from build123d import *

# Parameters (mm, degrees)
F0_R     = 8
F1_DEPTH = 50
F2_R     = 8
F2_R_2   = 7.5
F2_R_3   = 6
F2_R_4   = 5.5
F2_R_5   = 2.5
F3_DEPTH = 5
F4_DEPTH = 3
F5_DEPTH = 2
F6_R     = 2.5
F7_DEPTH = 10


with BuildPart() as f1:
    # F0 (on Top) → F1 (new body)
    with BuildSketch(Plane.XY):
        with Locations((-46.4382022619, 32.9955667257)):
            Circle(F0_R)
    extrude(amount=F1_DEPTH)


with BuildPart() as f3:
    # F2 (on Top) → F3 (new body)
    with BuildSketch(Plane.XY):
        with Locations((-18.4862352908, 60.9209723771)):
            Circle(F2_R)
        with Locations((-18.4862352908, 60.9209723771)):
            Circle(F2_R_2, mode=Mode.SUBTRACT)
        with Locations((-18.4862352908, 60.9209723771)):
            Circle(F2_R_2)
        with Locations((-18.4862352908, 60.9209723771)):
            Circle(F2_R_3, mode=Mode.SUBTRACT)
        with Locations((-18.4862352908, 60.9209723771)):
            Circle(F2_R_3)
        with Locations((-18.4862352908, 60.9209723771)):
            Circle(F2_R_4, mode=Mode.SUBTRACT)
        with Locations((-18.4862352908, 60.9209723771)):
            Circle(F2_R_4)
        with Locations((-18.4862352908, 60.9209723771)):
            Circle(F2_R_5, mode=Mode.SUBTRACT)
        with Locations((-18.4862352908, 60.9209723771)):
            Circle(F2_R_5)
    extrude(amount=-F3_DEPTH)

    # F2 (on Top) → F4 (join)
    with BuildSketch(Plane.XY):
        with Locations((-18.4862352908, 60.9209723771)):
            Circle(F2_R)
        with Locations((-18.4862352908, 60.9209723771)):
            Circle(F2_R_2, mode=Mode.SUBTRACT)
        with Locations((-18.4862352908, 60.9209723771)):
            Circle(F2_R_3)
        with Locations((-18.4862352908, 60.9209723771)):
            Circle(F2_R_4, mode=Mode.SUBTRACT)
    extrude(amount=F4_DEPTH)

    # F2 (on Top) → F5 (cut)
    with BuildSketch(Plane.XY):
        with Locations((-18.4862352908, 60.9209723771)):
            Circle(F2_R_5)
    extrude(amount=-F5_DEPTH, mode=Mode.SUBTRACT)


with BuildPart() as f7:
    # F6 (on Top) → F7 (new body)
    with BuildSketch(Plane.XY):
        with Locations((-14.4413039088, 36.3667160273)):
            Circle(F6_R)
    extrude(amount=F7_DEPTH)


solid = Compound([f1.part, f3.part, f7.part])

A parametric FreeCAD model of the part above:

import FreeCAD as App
import Part
import Sketcher

V = App.Vector

doc = App.newDocument("Part")
body = doc.addObject("PartDesign::Body", "Body")

# Sketch on XY plane
sketch1 = body.newObject("Sketcher::SketchObject", "Sketch")
sketch1.AttachmentSupport = (doc.getObject("XY_Plane"), [""])
sketch1.MapMode = "FlatFace"
sketch1.addGeometry(Part.Circle(V(-46.438202, 32.995567, 0), V(0, 0, 1), 8), False)
sketch1.addConstraint(Sketcher.Constraint("Diameter", 0, 16.0))
sketch1.addConstraint(Sketcher.Constraint("DistanceX", 0, 3, -1, 1, 46.438202))
sketch1.addConstraint(Sketcher.Constraint("DistanceY", -1, 1, 0, 3, 32.995567))
pad1 = body.newObject("PartDesign::Pad", "Pad")
pad1.Profile = sketch1
pad1.Length = 50
body2 = doc.addObject("PartDesign::Body", "Body001")

# Sketch on XY plane
sketch2 = body2.newObject("Sketcher::SketchObject", "Sketch001")
sketch2.AttachmentSupport = (doc.getObject("XY_Plane001"), [""])
sketch2.MapMode = "FlatFace"
sketch2.addGeometry(Part.Circle(V(-18.486235, 60.920972, 0), V(0, 0, 1), 8), False)
sketch2.addConstraint(Sketcher.Constraint("Diameter", 0, 16.0))
sketch2.addConstraint(Sketcher.Constraint("DistanceX", 0, 3, -1, 1, 18.486235))
sketch2.addConstraint(Sketcher.Constraint("DistanceY", -1, 1, 0, 3, 60.920972))
pad2 = body2.newObject("PartDesign::Pad", "Pad001")
pad2.Profile = sketch2
pad2.Length = 5
pad2.Reversed = True

# Sketch on XY plane
sketch3 = body2.newObject("Sketcher::SketchObject", "Sketch002")
sketch3.AttachmentSupport = (doc.getObject("XY_Plane001"), [""])
sketch3.MapMode = "FlatFace"
sketch3.addGeometry(Part.Circle(V(-18.486235, 60.920972, 0), V(0, 0, 1), 8), False)
sketch3.addGeometry(Part.Circle(V(-18.486235, 60.920972, 0), V(0, 0, 1), 7.5), False)
sketch3.addGeometry(Part.Circle(V(-18.486235, 60.920972, 0), V(0, 0, 1), 6), False)
sketch3.addGeometry(Part.Circle(V(-18.486235, 60.920972, 0), V(0, 0, 1), 5.5), False)
sketch3.addConstraint(Sketcher.Constraint("Coincident", 1, 3, 0, 3))
sketch3.addConstraint(Sketcher.Constraint("Coincident", 2, 3, 0, 3))
sketch3.addConstraint(Sketcher.Constraint("Coincident", 3, 3, 0, 3))
sketch3.addConstraint(Sketcher.Constraint("Diameter", 0, 16.0))
sketch3.addConstraint(Sketcher.Constraint("Diameter", 1, 15.0))
sketch3.addConstraint(Sketcher.Constraint("Diameter", 2, 12.0))
sketch3.addConstraint(Sketcher.Constraint("Diameter", 3, 11.0))
sketch3.addConstraint(Sketcher.Constraint("DistanceX", 0, 3, -1, 1, 18.486235))
sketch3.addConstraint(Sketcher.Constraint("DistanceY", -1, 1, 0, 3, 60.920972))
pad3 = body2.newObject("PartDesign::Pad", "Pad002")
pad3.Profile = sketch3
pad3.Length = 3

# Sketch on XY plane
sketch4 = body2.newObject("Sketcher::SketchObject", "Sketch003")
sketch4.AttachmentSupport = (doc.getObject("XY_Plane001"), [""])
sketch4.MapMode = "FlatFace"
sketch4.addGeometry(Part.Circle(V(-18.486235, 60.920972, 0), V(0, 0, 1), 2.5), False)
sketch4.addConstraint(Sketcher.Constraint("Diameter", 0, 5.0))
sketch4.addConstraint(Sketcher.Constraint("DistanceX", 0, 3, -1, 1, 18.486235))
sketch4.addConstraint(Sketcher.Constraint("DistanceY", -1, 1, 0, 3, 60.920972))
pocket1 = body2.newObject("PartDesign::Pocket", "Pocket")
pocket1.Profile = sketch4
pocket1.Length = 2
body3 = doc.addObject("PartDesign::Body", "Body002")

# Sketch on XY plane
sketch5 = body3.newObject("Sketcher::SketchObject", "Sketch004")
sketch5.AttachmentSupport = (doc.getObject("XY_Plane002"), [""])
sketch5.MapMode = "FlatFace"
sketch5.addGeometry(Part.Circle(V(-14.441304, 36.366716, 0), V(0, 0, 1), 2.5), False)
sketch5.addConstraint(Sketcher.Constraint("Diameter", 0, 5.0))
sketch5.addConstraint(Sketcher.Constraint("DistanceX", 0, 3, -1, 1, 14.441304))
sketch5.addConstraint(Sketcher.Constraint("DistanceY", -1, 1, 0, 3, 36.366716))
pad4 = body3.newObject("PartDesign::Pad", "Pad003")
pad4.Profile = sketch5
pad4.Length = 10

doc.recompute()
